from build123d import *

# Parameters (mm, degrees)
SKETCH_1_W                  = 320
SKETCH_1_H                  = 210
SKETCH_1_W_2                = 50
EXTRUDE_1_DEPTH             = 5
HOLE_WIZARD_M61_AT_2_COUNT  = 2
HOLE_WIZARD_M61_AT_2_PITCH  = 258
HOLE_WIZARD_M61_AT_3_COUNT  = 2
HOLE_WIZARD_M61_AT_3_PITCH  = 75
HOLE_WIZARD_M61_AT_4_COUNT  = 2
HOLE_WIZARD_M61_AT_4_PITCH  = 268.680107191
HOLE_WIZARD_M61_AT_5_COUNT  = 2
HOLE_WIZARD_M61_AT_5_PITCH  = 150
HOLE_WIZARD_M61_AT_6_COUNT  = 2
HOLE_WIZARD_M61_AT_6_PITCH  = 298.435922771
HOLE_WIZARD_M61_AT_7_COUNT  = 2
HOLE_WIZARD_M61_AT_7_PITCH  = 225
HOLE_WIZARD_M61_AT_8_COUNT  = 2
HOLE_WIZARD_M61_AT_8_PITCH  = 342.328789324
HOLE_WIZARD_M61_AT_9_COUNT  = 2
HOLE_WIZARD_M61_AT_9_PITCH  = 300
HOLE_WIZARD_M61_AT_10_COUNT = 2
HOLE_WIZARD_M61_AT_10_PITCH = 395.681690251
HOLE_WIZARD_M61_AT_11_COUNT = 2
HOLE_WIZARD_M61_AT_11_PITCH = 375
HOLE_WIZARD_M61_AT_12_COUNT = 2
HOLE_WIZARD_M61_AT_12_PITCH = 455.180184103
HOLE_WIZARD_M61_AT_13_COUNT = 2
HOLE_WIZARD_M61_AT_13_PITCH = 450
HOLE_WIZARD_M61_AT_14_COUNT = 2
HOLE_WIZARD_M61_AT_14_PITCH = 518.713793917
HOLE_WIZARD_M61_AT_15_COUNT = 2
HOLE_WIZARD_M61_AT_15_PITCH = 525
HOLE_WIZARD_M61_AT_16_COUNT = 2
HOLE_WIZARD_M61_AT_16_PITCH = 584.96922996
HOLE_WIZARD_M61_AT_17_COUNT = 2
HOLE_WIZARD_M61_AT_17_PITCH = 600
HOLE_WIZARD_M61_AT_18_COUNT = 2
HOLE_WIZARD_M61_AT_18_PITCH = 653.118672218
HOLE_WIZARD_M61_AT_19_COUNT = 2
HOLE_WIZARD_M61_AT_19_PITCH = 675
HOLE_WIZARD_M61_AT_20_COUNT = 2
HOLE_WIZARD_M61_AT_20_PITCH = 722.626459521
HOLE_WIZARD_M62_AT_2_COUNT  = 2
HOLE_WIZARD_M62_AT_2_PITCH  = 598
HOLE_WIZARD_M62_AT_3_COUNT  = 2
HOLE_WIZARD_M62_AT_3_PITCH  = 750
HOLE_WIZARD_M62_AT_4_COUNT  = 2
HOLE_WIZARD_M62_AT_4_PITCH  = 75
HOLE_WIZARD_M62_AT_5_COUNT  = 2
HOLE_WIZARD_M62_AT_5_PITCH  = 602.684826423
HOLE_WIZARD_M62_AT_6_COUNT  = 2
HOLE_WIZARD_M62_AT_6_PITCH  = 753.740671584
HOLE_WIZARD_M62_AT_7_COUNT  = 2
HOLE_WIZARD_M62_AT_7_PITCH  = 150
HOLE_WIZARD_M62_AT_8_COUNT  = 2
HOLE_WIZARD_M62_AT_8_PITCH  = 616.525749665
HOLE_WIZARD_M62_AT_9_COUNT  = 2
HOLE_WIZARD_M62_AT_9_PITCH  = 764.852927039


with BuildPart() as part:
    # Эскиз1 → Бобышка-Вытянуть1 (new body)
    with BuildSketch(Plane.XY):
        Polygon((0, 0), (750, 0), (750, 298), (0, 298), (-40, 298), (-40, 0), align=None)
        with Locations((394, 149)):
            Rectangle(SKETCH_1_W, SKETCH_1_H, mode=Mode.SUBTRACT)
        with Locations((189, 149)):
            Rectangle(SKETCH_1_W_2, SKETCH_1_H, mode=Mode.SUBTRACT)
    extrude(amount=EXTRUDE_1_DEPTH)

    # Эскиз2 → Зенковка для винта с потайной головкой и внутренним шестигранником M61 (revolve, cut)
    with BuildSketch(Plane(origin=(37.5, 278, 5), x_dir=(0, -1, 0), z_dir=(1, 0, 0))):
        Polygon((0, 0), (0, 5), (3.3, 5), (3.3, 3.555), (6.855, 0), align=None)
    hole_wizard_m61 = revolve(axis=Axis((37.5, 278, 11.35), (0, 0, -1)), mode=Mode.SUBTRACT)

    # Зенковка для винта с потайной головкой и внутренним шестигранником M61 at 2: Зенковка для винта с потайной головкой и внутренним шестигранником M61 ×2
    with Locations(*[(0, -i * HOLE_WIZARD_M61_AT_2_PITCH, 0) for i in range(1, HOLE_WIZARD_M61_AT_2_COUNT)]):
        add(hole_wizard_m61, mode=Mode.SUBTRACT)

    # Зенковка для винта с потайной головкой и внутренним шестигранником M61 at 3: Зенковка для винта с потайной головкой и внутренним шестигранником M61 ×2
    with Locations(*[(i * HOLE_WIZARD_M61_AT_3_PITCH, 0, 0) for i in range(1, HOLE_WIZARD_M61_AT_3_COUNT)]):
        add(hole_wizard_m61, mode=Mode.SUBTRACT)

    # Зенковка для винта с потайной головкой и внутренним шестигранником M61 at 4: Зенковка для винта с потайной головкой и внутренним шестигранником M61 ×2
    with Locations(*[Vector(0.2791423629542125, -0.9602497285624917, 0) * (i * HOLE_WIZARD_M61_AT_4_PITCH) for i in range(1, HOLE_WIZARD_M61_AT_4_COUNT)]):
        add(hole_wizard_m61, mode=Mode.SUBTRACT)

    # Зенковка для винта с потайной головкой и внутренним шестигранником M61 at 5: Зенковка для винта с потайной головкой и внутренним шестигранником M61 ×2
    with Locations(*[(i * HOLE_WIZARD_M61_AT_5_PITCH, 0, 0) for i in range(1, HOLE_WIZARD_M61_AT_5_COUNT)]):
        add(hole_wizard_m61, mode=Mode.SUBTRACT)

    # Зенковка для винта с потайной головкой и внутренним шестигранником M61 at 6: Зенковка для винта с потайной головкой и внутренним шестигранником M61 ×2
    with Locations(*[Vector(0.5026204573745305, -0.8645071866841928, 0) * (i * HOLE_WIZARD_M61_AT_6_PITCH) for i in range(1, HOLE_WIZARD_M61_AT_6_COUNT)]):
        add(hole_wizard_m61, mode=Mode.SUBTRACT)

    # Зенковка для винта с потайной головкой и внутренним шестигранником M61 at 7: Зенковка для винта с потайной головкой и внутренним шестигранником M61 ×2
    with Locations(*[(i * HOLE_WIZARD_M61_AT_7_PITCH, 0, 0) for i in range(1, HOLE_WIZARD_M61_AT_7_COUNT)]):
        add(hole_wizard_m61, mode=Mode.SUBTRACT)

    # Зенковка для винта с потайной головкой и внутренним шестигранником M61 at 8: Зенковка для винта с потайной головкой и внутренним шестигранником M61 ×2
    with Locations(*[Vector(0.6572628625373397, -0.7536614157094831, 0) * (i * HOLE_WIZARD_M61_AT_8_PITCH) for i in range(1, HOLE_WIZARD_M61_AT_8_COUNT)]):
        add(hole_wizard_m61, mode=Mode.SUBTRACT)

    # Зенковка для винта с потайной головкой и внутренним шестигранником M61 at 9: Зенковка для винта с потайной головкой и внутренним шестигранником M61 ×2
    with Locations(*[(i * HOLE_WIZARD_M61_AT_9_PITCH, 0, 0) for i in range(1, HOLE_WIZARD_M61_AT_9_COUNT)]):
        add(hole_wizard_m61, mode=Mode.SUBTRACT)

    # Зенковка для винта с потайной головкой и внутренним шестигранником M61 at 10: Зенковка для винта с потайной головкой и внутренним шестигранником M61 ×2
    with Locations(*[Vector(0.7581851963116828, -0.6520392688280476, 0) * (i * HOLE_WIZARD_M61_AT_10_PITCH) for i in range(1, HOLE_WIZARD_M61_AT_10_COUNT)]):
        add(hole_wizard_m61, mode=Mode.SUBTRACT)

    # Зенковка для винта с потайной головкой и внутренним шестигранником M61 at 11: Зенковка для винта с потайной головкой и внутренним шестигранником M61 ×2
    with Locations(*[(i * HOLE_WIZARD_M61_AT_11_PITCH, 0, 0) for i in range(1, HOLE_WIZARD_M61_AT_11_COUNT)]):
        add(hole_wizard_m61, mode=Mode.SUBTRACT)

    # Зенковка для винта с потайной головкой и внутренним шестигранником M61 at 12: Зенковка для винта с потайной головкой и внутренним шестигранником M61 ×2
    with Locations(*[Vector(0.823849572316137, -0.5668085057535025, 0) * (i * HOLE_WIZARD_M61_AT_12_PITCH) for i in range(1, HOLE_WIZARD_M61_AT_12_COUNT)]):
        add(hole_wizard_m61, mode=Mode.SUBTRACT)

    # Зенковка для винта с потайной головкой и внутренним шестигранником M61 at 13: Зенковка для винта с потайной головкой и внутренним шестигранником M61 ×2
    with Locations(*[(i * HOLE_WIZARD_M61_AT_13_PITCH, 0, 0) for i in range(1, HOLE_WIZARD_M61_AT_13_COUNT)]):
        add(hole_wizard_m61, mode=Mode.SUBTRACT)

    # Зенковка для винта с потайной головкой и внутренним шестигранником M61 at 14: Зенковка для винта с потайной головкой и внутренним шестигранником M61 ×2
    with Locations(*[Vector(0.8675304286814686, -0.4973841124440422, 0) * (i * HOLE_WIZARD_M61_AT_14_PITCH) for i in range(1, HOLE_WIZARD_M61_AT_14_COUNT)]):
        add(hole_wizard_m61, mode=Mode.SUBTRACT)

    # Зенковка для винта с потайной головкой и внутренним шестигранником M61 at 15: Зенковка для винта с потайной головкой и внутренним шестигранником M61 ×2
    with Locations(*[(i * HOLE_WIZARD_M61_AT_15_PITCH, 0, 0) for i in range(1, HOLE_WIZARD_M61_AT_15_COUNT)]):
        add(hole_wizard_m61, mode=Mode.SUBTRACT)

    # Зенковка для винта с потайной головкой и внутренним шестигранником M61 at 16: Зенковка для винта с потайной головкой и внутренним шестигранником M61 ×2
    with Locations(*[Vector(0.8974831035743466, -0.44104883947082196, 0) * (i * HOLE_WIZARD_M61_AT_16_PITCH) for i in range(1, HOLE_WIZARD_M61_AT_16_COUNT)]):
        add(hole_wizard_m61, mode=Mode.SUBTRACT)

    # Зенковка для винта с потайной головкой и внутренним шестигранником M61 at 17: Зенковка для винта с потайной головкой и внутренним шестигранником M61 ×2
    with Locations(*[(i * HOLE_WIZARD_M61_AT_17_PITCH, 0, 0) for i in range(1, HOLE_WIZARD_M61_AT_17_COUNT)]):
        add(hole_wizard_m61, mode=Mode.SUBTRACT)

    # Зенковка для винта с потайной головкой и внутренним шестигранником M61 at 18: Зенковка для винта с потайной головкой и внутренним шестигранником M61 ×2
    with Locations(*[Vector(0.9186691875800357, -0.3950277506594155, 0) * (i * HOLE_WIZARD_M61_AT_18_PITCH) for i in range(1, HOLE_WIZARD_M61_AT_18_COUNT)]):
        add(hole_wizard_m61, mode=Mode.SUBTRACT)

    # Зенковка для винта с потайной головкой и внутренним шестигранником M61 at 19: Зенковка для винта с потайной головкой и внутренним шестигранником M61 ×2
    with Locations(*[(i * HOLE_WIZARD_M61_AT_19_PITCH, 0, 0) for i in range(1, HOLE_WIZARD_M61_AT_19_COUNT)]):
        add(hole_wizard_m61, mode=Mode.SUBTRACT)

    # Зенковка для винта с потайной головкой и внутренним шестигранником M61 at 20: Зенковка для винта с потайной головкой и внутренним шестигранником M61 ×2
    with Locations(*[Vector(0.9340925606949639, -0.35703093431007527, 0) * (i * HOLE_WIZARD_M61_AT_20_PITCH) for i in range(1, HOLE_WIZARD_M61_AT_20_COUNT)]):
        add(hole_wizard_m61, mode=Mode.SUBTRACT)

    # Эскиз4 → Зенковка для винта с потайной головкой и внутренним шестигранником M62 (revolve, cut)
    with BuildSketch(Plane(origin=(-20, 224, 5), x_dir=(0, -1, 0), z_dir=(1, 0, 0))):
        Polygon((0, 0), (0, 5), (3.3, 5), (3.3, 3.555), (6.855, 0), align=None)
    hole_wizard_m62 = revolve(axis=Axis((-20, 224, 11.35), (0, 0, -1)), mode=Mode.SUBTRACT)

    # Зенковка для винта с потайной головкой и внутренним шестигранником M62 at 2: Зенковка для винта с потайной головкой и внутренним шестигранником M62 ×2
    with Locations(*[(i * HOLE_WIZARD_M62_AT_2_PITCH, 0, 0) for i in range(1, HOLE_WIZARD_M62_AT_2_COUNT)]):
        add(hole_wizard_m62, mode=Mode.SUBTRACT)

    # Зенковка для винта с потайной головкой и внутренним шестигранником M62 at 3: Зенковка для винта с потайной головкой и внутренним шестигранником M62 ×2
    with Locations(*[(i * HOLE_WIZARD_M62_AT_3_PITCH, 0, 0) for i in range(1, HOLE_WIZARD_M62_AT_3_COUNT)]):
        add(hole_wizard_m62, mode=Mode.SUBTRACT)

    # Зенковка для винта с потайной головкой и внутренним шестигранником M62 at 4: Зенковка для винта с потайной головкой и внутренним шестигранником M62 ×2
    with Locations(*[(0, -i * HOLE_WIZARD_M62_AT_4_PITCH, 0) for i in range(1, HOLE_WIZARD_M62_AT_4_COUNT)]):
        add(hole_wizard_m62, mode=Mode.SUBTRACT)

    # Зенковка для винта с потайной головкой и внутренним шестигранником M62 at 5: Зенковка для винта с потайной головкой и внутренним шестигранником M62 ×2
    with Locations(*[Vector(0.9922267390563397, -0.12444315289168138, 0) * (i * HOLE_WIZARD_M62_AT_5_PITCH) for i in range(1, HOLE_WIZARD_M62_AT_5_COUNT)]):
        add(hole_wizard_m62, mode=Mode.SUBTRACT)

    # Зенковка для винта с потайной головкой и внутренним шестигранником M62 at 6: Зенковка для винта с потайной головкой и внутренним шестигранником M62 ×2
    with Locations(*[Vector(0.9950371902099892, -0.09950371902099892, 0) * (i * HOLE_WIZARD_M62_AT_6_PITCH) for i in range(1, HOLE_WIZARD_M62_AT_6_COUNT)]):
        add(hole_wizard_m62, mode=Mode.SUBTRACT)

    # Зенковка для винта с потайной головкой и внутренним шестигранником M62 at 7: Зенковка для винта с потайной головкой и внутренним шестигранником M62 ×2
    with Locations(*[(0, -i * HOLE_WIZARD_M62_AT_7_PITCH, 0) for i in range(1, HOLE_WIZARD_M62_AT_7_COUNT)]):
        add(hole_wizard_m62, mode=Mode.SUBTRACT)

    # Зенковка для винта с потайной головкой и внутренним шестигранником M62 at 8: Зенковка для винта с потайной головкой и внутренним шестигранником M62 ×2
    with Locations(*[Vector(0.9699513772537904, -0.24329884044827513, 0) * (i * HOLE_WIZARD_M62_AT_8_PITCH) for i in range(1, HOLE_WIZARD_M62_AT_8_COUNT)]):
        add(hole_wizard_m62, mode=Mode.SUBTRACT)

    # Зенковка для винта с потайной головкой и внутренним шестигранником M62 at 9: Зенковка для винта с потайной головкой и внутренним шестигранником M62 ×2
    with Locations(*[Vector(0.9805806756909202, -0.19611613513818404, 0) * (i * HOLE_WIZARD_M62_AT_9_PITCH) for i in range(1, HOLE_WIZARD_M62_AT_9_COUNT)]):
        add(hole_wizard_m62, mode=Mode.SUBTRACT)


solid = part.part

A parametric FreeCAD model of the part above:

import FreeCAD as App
import Part
import Sketcher
Q = App.Units.Quantity

doc = App.newDocument("Part")
params = doc.addObject("Spreadsheet::Sheet", "Params")
for row, (alias, value) in enumerate([
    ("sketch1_width", "790 mm"),
    ("sketch1_width2", "50 mm"),
    ("sketch1_width3", "320 mm"),
    ("sketch1_height", "298 mm"),
    ("sketch1_height2", "210 mm"),
    ("pad1_length", "5 mm"),
    ("sketch2_height", "5 mm"),
    ("sketch2_width", "3.3 mm"),
    ("groove_angle", "360 deg"),
    ("linearpattern_pitch", "258 mm"),
    ("linearpattern2_pitch", "75 mm"),
    ("linearpattern3_pitch", "268.680107 mm"),
    ("linearpattern4_pitch", "150 mm"),
    ("linearpattern5_pitch", "298.435923 mm"),
    ("linearpattern6_pitch", "225 mm"),
    ("linearpattern7_pitch", "342.328789 mm"),
    ("linearpattern8_pitch", "300 mm"),
    ("linearpattern9_pitch", "395.68169 mm"),
    ("linearpattern10_pitch", "375 mm"),
    ("linearpattern11_pitch", "455.180184 mm"),
    ("linearpattern12_pitch", "450 mm"),
    ("linearpattern13_pitch", "518.713794 mm"),
    ("linearpattern14_pitch", "525 mm"),
    ("linearpattern15_pitch", "584.96923 mm"),
    ("linearpattern16_pitch", "600 mm"),
    ("linearpattern17_pitch", "653.118672 mm"),
    ("linearpattern18_pitch", "675 mm"),
    ("linearpattern19_pitch", "722.62646 mm"),
    ("sketch3_height", "5 mm"),
    ("sketch3_width", "3.3 mm"),
    ("groove2_angle", "360 deg"),
    ("linearpattern20_pitch", "598 mm"),
    ("linearpattern21_pitch", "750 mm"),
    ("linearpattern22_pitch", "75 mm"),
    ("linearpattern23_pitch", "602.684826 mm"),
    ("linearpattern24_pitch", "753.740672 mm"),
    ("linearpattern25_pitch", "150 mm"),
    ("linearpattern26_pitch", "616.52575 mm"),
    ("linearpattern27_pitch", "764.852927 mm"),
], start=1):
    params.set(f"A{row}", alias)
    params.set(f"B{row}", "=" + value)
    params.setAlias(f"B{row}", alias)

body = doc.addObject("PartDesign::Body", "Body")

# Sketch on XY plane
sketch1 = doc.addObject("Sketcher::SketchObject", "Sketch")
body.addObject(sketch1)
sketch1.AttachmentSupport = (doc.XY_Plane, [""])
sketch1.MapMode = "FlatFace"
sketch1.addGeometry([
    Part.LineSegment(App.Vector(750, 0, 0), App.Vector(750, 298, 0)),  # 0
    Part.LineSegment(App.Vector(750, 298, 0), App.Vector(-40, 298, 0)),  # 1
    Part.LineSegment(App.Vector(-40, 298, 0), App.Vector(-40, 0, 0)),  # 2
    Part.LineSegment(App.Vector(-40, 0, 0), App.Vector(750, 0, 0)),  # 3
    Part.LineSegment(App.Vector(214, 44, 0), App.Vector(164, 44, 0)),  # 4
    Part.LineSegment(App.Vector(164, 44, 0), App.Vector(164, 254, 0)),  # 5
    Part.LineSegment(App.Vector(164, 254, 0), App.Vector(214, 254, 0)),  # 6
    Part.LineSegment(App.Vector(214, 254, 0), App.Vector(214, 44, 0)),  # 7
    Part.LineSegment(App.Vector(554, 44, 0), App.Vector(234, 44, 0)),  # 8
    Part.LineSegment(App.Vector(234, 44, 0), App.Vector(234, 254, 0)),  # 9
    Part.LineSegment(App.Vector(234, 254, 0), App.Vector(554, 254, 0)),  # 10
    Part.LineSegment(App.Vector(554, 254, 0), App.Vector(554, 44, 0)),  # 11
], False)
sketch1.addConstraint([
    Sketcher.Constraint("Coincident", 0, 2, 1, 1),
    Sketcher.Constraint("Coincident", 1, 2, 2, 1),
    Sketcher.Constraint("Coincident", 2, 2, 3, 1),
    Sketcher.Constraint("Coincident", 3, 2, 0, 1),
    Sketcher.Constraint("Coincident", 4, 2, 5, 1),
    Sketcher.Constraint("Coincident", 5, 2, 6, 1),
    Sketcher.Constraint("Coincident", 6, 2, 7, 1),
    Sketcher.Constraint("Coincident", 7, 2, 4, 1),
    Sketcher.Constraint("Coincident", 8, 2, 9, 1),
    Sketcher.Constraint("Coincident", 9, 2, 10, 1),
    Sketcher.Constraint("Coincident", 10, 2, 11, 1),
    Sketcher.Constraint("Coincident", 11, 2, 8, 1),
    Sketcher.Constraint("Vertical", 0),
    Sketcher.Constraint("Horizontal", 1),
    Sketcher.Constraint("Vertical", 2),
    Sketcher.Constraint("Horizontal", 3),
    Sketcher.Constraint("Horizontal", 4),
    Sketcher.Constraint("Vertical", 5),
    Sketcher.Constraint("Horizontal", 6),
    Sketcher.Constraint("Vertical", 7),
    Sketcher.Constraint("Horizontal", 8),
    Sketcher.Constraint("Vertical", 9),
    Sketcher.Constraint("Horizontal", 10),
    Sketcher.Constraint("Vertical", 11),
    Sketcher.Constraint("PointOnObject", 2, 2, -1),
    Sketcher.Constraint("Horizontal", 7, 2, 8, 2),
    Sketcher.Constraint("Horizontal", 6, 2, 9, 2),
    Sketcher.Constraint("DistanceX", 1, 2, 1, 1, 790.0),
    Sketcher.Constraint("DistanceX", 4, 2, 4, 1, 50.0),
    Sketcher.Constraint("DistanceX", 8, 2, 8, 1, 320.0),
    Sketcher.Constraint("DistanceY", 0, 1, 0, 2, 298.0),
    Sketcher.Constraint("DistanceY", 5, 1, 5, 2, 210.0),
    Sketcher.Constraint("DistanceX", -1, 1, 0, 2, 750.0),
    Sketcher.Constraint("DistanceX", -1, 1, 4, 2, 164.0),
    Sketcher.Constraint("DistanceY", -1, 1, 4, 2, 44.0),
    Sketcher.Constraint("DistanceX", -1, 1, 8, 2, 234.0),
])
sketch1.setExpression("Constraints[27]", "Params.sketch1_width")
sketch1.setExpression("Constraints[28]", "Params.sketch1_width2")
sketch1.setExpression("Constraints[29]", "Params.sketch1_width3")
sketch1.setExpression("Constraints[30]", "Params.sketch1_height")
sketch1.setExpression("Constraints[31]", "Params.sketch1_height2")
pad1 = doc.addObject("PartDesign::Pad", "Pad")
body.addObject(pad1)
pad1.Profile = sketch1
pad1.setExpression("Length", "Params.pad1_length")

# Sketch on YZ plane
sketch2 = doc.addObject("Sketcher::SketchObject", "Sketch001")
body.addObject(sketch2)
sketch2.AttachmentSupport = (doc.YZ_Plane, [""])
sketch2.MapMode = "FlatFace"
sketch2.AttachmentOffset = App.Placement(App.Vector(0, 0, 37.5), App.Rotation())
sketch2.addGeometry([
    Part.LineSegment(App.Vector(278, 0, 0), App.Vector(278, 5, 0)),  # 0
    Part.LineSegment(App.Vector(278, 5, 0), App.Vector(271.1, 5, 0)),  # 1
    Part.LineSegment(App.Vector(271.1, 5, 0), App.Vector(274.7, 1.4, 0)),  # 2
    Part.LineSegment(App.Vector(274.7, 1.4, 0), App.Vector(274.7, 0, 0)),  # 3
    Part.LineSegment(App.Vector(274.7, 0, 0), App.Vector(278, 0, 0)),  # 4
], False)
sketch2.addGeometry(Part.LineSegment(App.Vector(278, 5, 0), App.Vector(278, 0, 0)), True)  # axis
sketch2.addConstraint([
    Sketcher.Constraint("Coincident", 0, 2, 1, 1),
    Sketcher.Constraint("Coincident", 1, 2, 2, 1),
    Sketcher.Constraint("Coincident", 2, 2, 3, 1),
    Sketcher.Constraint("Coincident", 3, 2, 4, 1),
    Sketcher.Constraint("Coincident", 4, 2, 0, 1),
    Sketcher.Constraint("Vertical", 0),
    Sketcher.Constraint("Horizontal", 1),
    Sketcher.Constraint("Vertical", 3),
    Sketcher.Constraint("Horizontal", 4),
    Sketcher.Constraint("Vertical", 5),
    Sketcher.Constraint("Coincident", 5, 1, 0, 2),
    Sketcher.Constraint("PointOnObject", 3, 2, -1),
    Sketcher.Constraint("PointOnObject", 5, 2, -1),
    Sketcher.Constraint("DistanceY", 0, 1, 0, 2, 5.0),
    Sketcher.Constraint("Angle", 2, Q("-45 deg")),
    Sketcher.Constraint("DistanceX", 4, 1, 4, 2, 3.3),
    Sketcher.Constraint("DistanceX", -1, 1, 0, 2, 278.0),
    Sketcher.Constraint("DistanceX", 1, 2, 1, 1, 6.855),
])
sketch2.setExpression("Constraints[13]", "Params.sketch2_height")
sketch2.setExpression("Constraints[15]", "Params.sketch2_width")
groove = doc.addObject("PartDesign::Groove", "Groove")
body.addObject(groove)
groove.Profile = sketch2
groove.ReferenceAxis = (sketch2, ["Axis0"])
groove.setExpression("Angle", "Params.groove_angle")
doc.recompute()

linearpattern = doc.addObject("PartDesign::LinearPattern", "LinearPattern")
body.addObject(linearpattern)
linearpattern.Originals = [groove]
linearpattern.Direction = (doc.Y_Axis, [""])
linearpattern.Mode = "offset"
linearpattern.setExpression("Offset", "Params.linearpattern_pitch")
linearpattern.Occurrences = 2
linearpattern.Reversed = True
body.Tip = linearpattern
doc.recompute()

linearpattern2 = doc.addObject("PartDesign::LinearPattern", "LinearPattern001")
body.addObject(linearpattern2)
linearpattern2.Originals = [groove]
linearpattern2.Direction = (doc.X_Axis, [""])
linearpattern2.Mode = "offset"
linearpattern2.setExpression("Offset", "Params.linearpattern2_pitch")
linearpattern2.Occurrences = 2
body.Tip = linearpattern2
doc.recompute()

datumline = doc.addObject("PartDesign::Line", "DatumLine")
body.addObject(datumline)
datumline.Placement = App.Placement(App.Vector(0, 0, 0), App.Rotation(App.Vector(0, 0, 1), App.Vector(0.279142363, -0.960249729, 0)))
linearpattern3 = doc.addObject("PartDesign::LinearPattern", "LinearPattern002")
body.addObject(linearpattern3)
linearpattern3.Originals = [groove]
linearpattern3.Direction = (datumline, [""])
linearpattern3.Mode = "offset"
linearpattern3.setExpression("Offset", "Params.linearpattern3_pitch")
linearpattern3.Occurrences = 2
body.Tip = linearpattern3
doc.recompute()

linearpattern4 = doc.addObject("PartDesign::LinearPattern", "LinearPattern003")
body.addObject(linearpattern4)
linearpattern4.Originals = [groove]
linearpattern4.Direction = (doc.X_Axis, [""])
linearpattern4.Mode = "offset"
linearpattern4.setExpression("Offset", "Params.linearpattern4_pitch")
linearpattern4.Occurrences = 2
body.Tip = linearpattern4
doc.recompute()

datumline2 = doc.addObject("PartDesign::Line", "DatumLine001")
body.addObject(datumline2)
datumline2.Placement = App.Placement(App.Vector(0, 0, 0), App.Rotation(App.Vector(0, 0, 1), App.Vector(0.502620457, -0.864507187, 0)))
linearpattern5 = doc.addObject("PartDesign::LinearPattern", "LinearPattern004")
body.addObject(linearpattern5)
linearpattern5.Originals = [groove]
linearpattern5.Direction = (datumline2, [""])
linearpattern5.Mode = "offset"
linearpattern5.setExpression("Offset", "Params.linearpattern5_pitch")
linearpattern5.Occurrences = 2
body.Tip = linearpattern5
doc.recompute()

linearpattern6 = doc.addObject("PartDesign::LinearPattern", "LinearPattern005")
body.addObject(linearpattern6)
linearpattern6.Originals = [groove]
linearpattern6.Direction = (doc.X_Axis, [""])
linearpattern6.Mode = "offset"
linearpattern6.setExpression("Offset", "Params.linearpattern6_pitch")
linearpattern6.Occurrences = 2
body.Tip = linearpattern6
doc.recompute()

datumline3 = doc.addObject("PartDesign::Line", "DatumLine002")
body.addObject(datumline3)
datumline3.Placement = App.Placement(App.Vector(0, 0, 0), App.Rotation(App.Vector(0, 0, 1), App.Vector(0.657262863, -0.753661416, 0)))
linearpattern7 = doc.addObject("PartDesign::LinearPattern", "LinearPattern006")
body.addObject(linearpattern7)
linearpattern7.Originals = [groove]
linearpattern7.Direction = (datumline3, [""])
linearpattern7.Mode = "offset"
linearpattern7.setExpression("Offset", "Params.linearpattern7_pitch")
linearpattern7.Occurrences = 2
body.Tip = linearpattern7
doc.recompute()

linearpattern8 = doc.addObject("PartDesign::LinearPattern", "LinearPattern007")
body.addObject(linearpattern8)
linearpattern8.Originals = [groove]
linearpattern8.Direction = (doc.X_Axis, [""])
linearpattern8.Mode = "offset"
linearpattern8.setExpression("Offset", "Params.linearpattern8_pitch")
linearpattern8.Occurrences = 2
body.Tip = linearpattern8
doc.recompute()

datumline4 = doc.addObject("PartDesign::Line", "DatumLine003")
body.addObject(datumline4)
datumline4.Placement = App.Placement(App.Vector(0, 0, 0), App.Rotation(App.Vector(0, 0, 1), App.Vector(0.758185196, -0.652039269, 0)))
linearpattern9 = doc.addObject("PartDesign::LinearPattern", "LinearPattern008")
body.addObject(linearpattern9)
linearpattern9.Originals = [groove]
linearpattern9.Direction = (datumline4, [""])
linearpattern9.Mode = "offset"
linearpattern9.setExpression("Offset", "Params.linearpattern9_pitch")
linearpattern9.Occurrences = 2
body.Tip = linearpattern9
doc.recompute()

linearpattern10 = doc.addObject("PartDesign::LinearPattern", "LinearPattern009")
body.addObject(linearpattern10)
linearpattern10.Originals = [groove]
linearpattern10.Direction = (doc.X_Axis, [""])
linearpattern10.Mode = "offset"
linearpattern10.setExpression("Offset", "Params.linearpattern10_pitch")
linearpattern10.Occurrences = 2
body.Tip = linearpattern10
doc.recompute()

datumline5 = doc.addObject("PartDesign::Line", "DatumLine004")
body.addObject(datumline5)
datumline5.Placement = App.Placement(App.Vector(0, 0, 0), App.Rotation(App.Vector(0, 0, 1), App.Vector(0.823849572, -0.566808506, 0)))
linearpattern11 = doc.addObject("PartDesign::LinearPattern", "LinearPattern010")
body.addObject(linearpattern11)
linearpattern11.Originals = [groove]
linearpattern11.Direction = (datumline5, [""])
linearpattern11.Mode = "offset"
linearpattern11.setExpression("Offset", "Params.linearpattern11_pitch")
linearpattern11.Occurrences = 2
body.Tip = linearpattern11
doc.recompute()

linearpattern12 = doc.addObject("PartDesign::LinearPattern", "LinearPattern011")
body.addObject(linearpattern12)
linearpattern12.Originals = [groove]
linearpattern12.Direction = (doc.X_Axis, [""])
linearpattern12.Mode = "offset"
linearpattern12.setExpression("Offset", "Params.linearpattern12_pitch")
linearpattern12.Occurrences = 2
body.Tip = linearpattern12
doc.recompute()

datumline6 = doc.addObject("PartDesign::Line", "DatumLine005")
body.addObject(datumline6)
datumline6.Placement = App.Placement(App.Vector(0, 0, 0), App.Rotation(App.Vector(0, 0, 1), App.Vector(0.867530429, -0.497384112, 0)))
linearpattern13 = doc.addObject("PartDesign::LinearPattern", "LinearPattern012")
body.addObject(linearpattern13)
linearpattern13.Originals = [groove]
linearpattern13.Direction = (datumline6, [""])
linearpattern13.Mode = "offset"
linearpattern13.setExpression("Offset", "Params.linearpattern13_pitch")
linearpattern13.Occurrences = 2
body.Tip = linearpattern13
doc.recompute()

linearpattern14 = doc.addObject("PartDesign::LinearPattern", "LinearPattern013")
body.addObject(linearpattern14)
linearpattern14.Originals = [groove]
linearpattern14.Direction = (doc.X_Axis, [""])
linearpattern14.Mode = "offset"
linearpattern14.setExpression("Offset", "Params.linearpattern14_pitch")
linearpattern14.Occurrences = 2
body.Tip = linearpattern14
doc.recompute()

datumline7 = doc.addObject("PartDesign::Line", "DatumLine006")
body.addObject(datumline7)
datumline7.Placement = App.Placement(App.Vector(0, 0, 0), App.Rotation(App.Vector(0, 0, 1), App.Vector(0.897483104, -0.441048839, 0)))
linearpattern15 = doc.addObject("PartDesign::LinearPattern", "LinearPattern014")
body.addObject(linearpattern15)
linearpattern15.Originals = [groove]
linearpattern15.Direction = (datumline7, [""])
linearpattern15.Mode = "offset"
linearpattern15.setExpression("Offset", "Params.linearpattern15_pitch")
linearpattern15.Occurrences = 2
body.Tip = linearpattern15
doc.recompute()

linearpattern16 = doc.addObject("PartDesign::LinearPattern", "LinearPattern015")
body.addObject(linearpattern16)
linearpattern16.Originals = [groove]
linearpattern16.Direction = (doc.X_Axis, [""])
linearpattern16.Mode = "offset"
linearpattern16.setExpression("Offset", "Params.linearpattern16_pitch")
linearpattern16.Occurrences = 2
body.Tip = linearpattern16
doc.recompute()

datumline8 = doc.addObject("PartDesign::Line", "DatumLine007")
body.addObject(datumline8)
datumline8.Placement = App.Placement(App.Vector(0, 0, 0), App.Rotation(App.Vector(0, 0, 1), App.Vector(0.918669188, -0.395027751, 0)))
linearpattern17 = doc.addObject("PartDesign::LinearPattern", "LinearPattern016")
body.addObject(linearpattern17)
linearpattern17.Originals = [groove]
linearpattern17.Direction = (datumline8, [""])
linearpattern17.Mode = "offset"
linearpattern17.setExpression("Offset", "Params.linearpattern17_pitch")
linearpattern17.Occurrences = 2
body.Tip = linearpattern17
doc.recompute()

linearpattern18 = doc.addObject("PartDesign::LinearPattern", "LinearPattern017")
body.addObject(linearpattern18)
linearpattern18.Originals = [groove]
linearpattern18.Direction = (doc.X_Axis, [""])
linearpattern18.Mode = "offset"
linearpattern18.setExpression("Offset", "Params.linearpattern18_pitch")
linearpattern18.Occurrences = 2
body.Tip = linearpattern18
doc.recompute()

datumline9 = doc.addObject("PartDesign::Line", "DatumLine008")
body.addObject(datumline9)
datumline9.Placement = App.Placement(App.Vector(0, 0, 0), App.Rotation(App.Vector(0, 0, 1), App.Vector(0.934092561, -0.357030934, 0)))
linearpattern19 = doc.addObject("PartDesign::LinearPattern", "LinearPattern018")
body.addObject(linearpattern19)
linearpattern19.Originals = [groove]
linearpattern19.Direction = (datumline9, [""])
linearpattern19.Mode = "offset"
linearpattern19.setExpression("Offset", "Params.linearpattern19_pitch")
linearpattern19.Occurrences = 2
body.Tip = linearpattern19

# Sketch on YZ plane
sketch3 = doc.addObject("Sketcher::SketchObject", "Sketch002")
body.addObject(sketch3)
sketch3.AttachmentSupport = (doc.YZ_Plane, [""])
sketch3.MapMode = "FlatFace"
sketch3.AttachmentOffset = App.Placement(App.Vector(0, 0, -20), App.Rotation())
sketch3.addGeometry([
    Part.LineSegment(App.Vector(224, 0, 0), App.Vector(224, 5, 0)),  # 0
    Part.LineSegment(App.Vector(224, 5, 0), App.Vector(217.1, 5, 0)),  # 1
    Part.LineSegment(App.Vector(217.1, 5, 0), App.Vector(220.7, 1.4, 0)),  # 2
    Part.LineSegment(App.Vector(220.7, 1.4, 0), App.Vector(220.7, 0, 0)),  # 3
    Part.LineSegment(App.Vector(220.7, 0, 0), App.Vector(224, 0, 0)),  # 4
], False)
sketch3.addGeometry(Part.LineSegment(App.Vector(224, 5, 0), App.Vector(224, 0, 0)), True)  # axis
sketch3.addConstraint([
    Sketcher.Constraint("Coincident", 0, 2, 1, 1),
    Sketcher.Constraint("Coincident", 1, 2, 2, 1),
    Sketcher.Constraint("Coincident", 2, 2, 3, 1),
    Sketcher.Constraint("Coincident", 3, 2, 4, 1),
    Sketcher.Constraint("Coincident", 4, 2, 0, 1),
    Sketcher.Constraint("Vertical", 0),
    Sketcher.Constraint("Horizontal", 1),
    Sketcher.Constraint("Vertical", 3),
    Sketcher.Constraint("Horizontal", 4),
    Sketcher.Constraint("Vertical", 5),
    Sketcher.Constraint("Coincident", 5, 1, 0, 2),
    Sketcher.Constraint("PointOnObject", 3, 2, -1),
    Sketcher.Constraint("PointOnObject", 5, 2, -1),
    Sketcher.Constraint("DistanceY", 0, 1, 0, 2, 5.0),
    Sketcher.Constraint("Angle", 2, Q("-45 deg")),
    Sketcher.Constraint("DistanceX", 4, 1, 4, 2, 3.3),
    Sketcher.Constraint("DistanceX", -1, 1, 0, 2, 224.0),
    Sketcher.Constraint("DistanceX", 1, 2, 1, 1, 6.855),
])
sketch3.setExpression("Constraints[13]", "Params.sketch3_height")
sketch3.setExpression("Constraints[15]", "Params.sketch3_width")
groove2 = doc.addObject("PartDesign::Groove", "Groove001")
body.addObject(groove2)
groove2.Profile = sketch3
groove2.ReferenceAxis = (sketch3, ["Axis0"])
groove2.setExpression("Angle", "Params.groove2_angle")
doc.recompute()

linearpattern20 = doc.addObject("PartDesign::LinearPattern", "LinearPattern019")
body.addObject(linearpattern20)
linearpattern20.Originals = [groove2]
linearpattern20.Direction = (doc.X_Axis, [""])
linearpattern20.Mode = "offset"
linearpattern20.setExpression("Offset", "Params.linearpattern20_pitch")
linearpattern20.Occurrences = 2
body.Tip = linearpattern20
doc.recompute()

linearpattern21 = doc.addObject("PartDesign::LinearPattern", "LinearPattern020")
body.addObject(linearpattern21)
linearpattern21.Originals = [groove2]
linearpattern21.Direction = (doc.X_Axis, [""])
linearpattern21.Mode = "offset"
linearpattern21.setExpression("Offset", "Params.linearpattern21_pitch")
linearpattern21.Occurrences = 2
body.Tip = linearpattern21
doc.recompute()

linearpattern22 = doc.addObject("PartDesign::LinearPattern", "LinearPattern021")
body.addObject(linearpattern22)
linearpattern22.Originals = [groove2]
linearpattern22.Direction = (doc.Y_Axis, [""])
linearpattern22.Mode = "offset"
linearpattern22.setExpression("Offset", "Params.linearpattern22_pitch")
linearpattern22.Occurrences = 2
linearpattern22.Reversed = True
body.Tip = linearpattern22
doc.recompute()

datumline10 = doc.addObject("PartDesign::Line", "DatumLine009")
body.addObject(datumline10)
datumline10.Placement = App.Placement(App.Vector(0, 0, 0), App.Rotation(App.Vector(0, 0, 1), App.Vector(0.992226739, -0.124443153, 0)))
linearpattern23 = doc.addObject("PartDesign::LinearPattern", "LinearPattern022")
body.addObject(linearpattern23)
linearpattern23.Originals = [groove2]
linearpattern23.Direction = (datumline10, [""])
linearpattern23.Mode = "offset"
linearpattern23.setExpression("Offset", "Params.linearpattern23_pitch")
linearpattern23.Occurrences = 2
body.Tip = linearpattern23
doc.recompute()

datumline11 = doc.addObject("PartDesign::Line", "DatumLine010")
body.addObject(datumline11)
datumline11.Placement = App.Placement(App.Vector(0, 0, 0), App.Rotation(App.Vector(0, 0, 1), App.Vector(0.99503719, -0.099503719, 0)))
linearpattern24 = doc.addObject("PartDesign::LinearPattern", "LinearPattern023")
body.addObject(linearpattern24)
linearpattern24.Originals = [groove2]
linearpattern24.Direction = (datumline11, [""])
linearpattern24.Mode = "offset"
linearpattern24.setExpression("Offset", "Params.linearpattern24_pitch")
linearpattern24.Occurrences = 2
body.Tip = linearpattern24
doc.recompute()

linearpattern25 = doc.addObject("PartDesign::LinearPattern", "LinearPattern024")
body.addObject(linearpattern25)
linearpattern25.Originals = [groove2]
linearpattern25.Direction = (doc.Y_Axis, [""])
linearpattern25.Mode = "offset"
linearpattern25.setExpression("Offset", "Params.linearpattern25_pitch")
linearpattern25.Occurrences = 2
linearpattern25.Reversed = True
body.Tip = linearpattern25
doc.recompute()

datumline12 = doc.addObject("PartDesign::Line", "DatumLine011")
body.addObject(datumline12)
datumline12.Placement = App.Placement(App.Vector(0, 0, 0), App.Rotation(App.Vector(0, 0, 1), App.Vector(0.969951377, -0.24329884, 0)))
linearpattern26 = doc.addObject("PartDesign::LinearPattern", "LinearPattern025")
body.addObject(linearpattern26)
linearpattern26.Originals = [groove2]
linearpattern26.Direction = (datumline12, [""])
linearpattern26.Mode = "offset"
linearpattern26.setExpression("Offset", "Params.linearpattern26_pitch")
linearpattern26.Occurrences = 2
body.Tip = linearpattern26
doc.recompute()

datumline13 = doc.addObject("PartDesign::Line", "DatumLine012")
body.addObject(datumline13)
datumline13.Placement = App.Placement(App.Vector(0, 0, 0), App.Rotation(App.Vector(0, 0, 1), App.Vector(0.980580676, -0.196116135, 0)))
linearpattern27 = doc.addObject("PartDesign::LinearPattern", "LinearPattern026")
body.addObject(linearpattern27)
linearpattern27.Originals = [groove2]
linearpattern27.Direction = (datumline13, [""])
linearpattern27.Mode = "offset"
linearpattern27.setExpression("Offset", "Params.linearpattern27_pitch")
linearpattern27.Occurrences = 2
body.Tip = linearpattern27

doc.recompute()
